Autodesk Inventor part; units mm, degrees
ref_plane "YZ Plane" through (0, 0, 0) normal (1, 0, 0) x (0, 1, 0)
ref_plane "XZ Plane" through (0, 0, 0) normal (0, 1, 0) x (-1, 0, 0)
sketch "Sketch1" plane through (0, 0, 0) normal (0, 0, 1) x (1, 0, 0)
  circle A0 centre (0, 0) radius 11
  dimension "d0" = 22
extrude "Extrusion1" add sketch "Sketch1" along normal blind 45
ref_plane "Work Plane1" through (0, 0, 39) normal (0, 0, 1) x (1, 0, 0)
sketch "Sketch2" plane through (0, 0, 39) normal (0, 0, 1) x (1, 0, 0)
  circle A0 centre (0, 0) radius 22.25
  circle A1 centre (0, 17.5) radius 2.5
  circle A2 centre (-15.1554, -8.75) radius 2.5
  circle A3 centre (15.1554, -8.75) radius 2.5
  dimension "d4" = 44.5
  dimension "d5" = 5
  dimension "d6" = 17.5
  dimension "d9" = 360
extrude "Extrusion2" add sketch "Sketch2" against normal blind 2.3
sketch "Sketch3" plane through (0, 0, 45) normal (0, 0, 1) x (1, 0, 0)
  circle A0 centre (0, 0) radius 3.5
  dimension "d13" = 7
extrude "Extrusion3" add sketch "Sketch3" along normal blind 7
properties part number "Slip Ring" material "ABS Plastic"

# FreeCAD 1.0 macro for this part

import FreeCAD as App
import Part
import Sketcher
Q = App.Units.Quantity

doc = App.newDocument("Part")
body = doc.addObject("PartDesign::Body", "Body")

sketch1 = doc.addObject("Sketcher::SketchObject", "Sketch")
body.addObject(sketch1)
sketch1.AttachmentSupport = (doc.XY_Plane, [""])
sketch1.MapMode = "FlatFace"
sketch1.addGeometry(Part.Circle(App.Vector(0, 0, 0), App.Vector(0, 0, 1), 11), False)
sketch1.addConstraint([
    Sketcher.Constraint("Coincident", 0, 3, -1, 1),
    Sketcher.Constraint("Diameter", 0, Q("22 mm")),
])
pad1 = doc.addObject("PartDesign::Pad", "Pad")
body.addObject(pad1)
pad1.Profile = sketch1
pad1.Length = 45

sketch2 = doc.addObject("Sketcher::SketchObject", "Sketch001")
body.addObject(sketch2)
sketch2.AttachmentSupport = (doc.XY_Plane, [""])
sketch2.MapMode = "FlatFace"
sketch2.AttachmentOffset = App.Placement(App.Vector(0, 0, 39), App.Rotation())
sketch2.addGeometry([
    Part.Circle(App.Vector(0, 0, 0), App.Vector(0, 0, 1), 22.2),
    Part.Circle(App.Vector(-15.2, -8.8, 0), App.Vector(0, 0, 1), 2.5),
    Part.Circle(App.Vector(15.2, -8.8, 0), App.Vector(0, 0, 1), 2.5),
    Part.Circle(App.Vector(0, 17.5, 0), App.Vector(0, 0, 1), 2.5),
], False)
sketch2.addConstraint([
    Sketcher.Constraint("Coincident", 0, 3, -1, 1),
    Sketcher.Constraint("Equal", 1, 2),
    Sketcher.Constraint("Equal", 2, 3),
    Sketcher.Constraint("Symmetric", 1, 3, 2, 3, -2),
    Sketcher.Constraint("PointOnObject", 3, 3, -2),
    Sketcher.Constraint("Diameter", 1, Q("5 mm")),
    Sketcher.Constraint("Diameter", 0, Q("44.5 mm")),
    Sketcher.Constraint("DistanceY", -1, 1, 3, 3, Q("17.5 mm")),
    Sketcher.Constraint("DistanceY", 1, 3, -1, 1, Q("8.75 mm")),
    Sketcher.Constraint("DistanceX", 1, 3, -1, 1, Q("15.1554 mm")),
])
pad2 = doc.addObject("PartDesign::Pad", "Pad001")
body.addObject(pad2)
pad2.Profile = sketch2
pad2.Length = 2.3
pad2.Reversed = True

sketch3 = doc.addObject("Sketcher::SketchObject", "Sketch002")
body.addObject(sketch3)
sketch3.AttachmentSupport = (doc.XY_Plane, [""])
sketch3.MapMode = "FlatFace"
sketch3.AttachmentOffset = App.Placement(App.Vector(0, 0, 45), App.Rotation())
sketch3.addGeometry(Part.Circle(App.Vector(0, 0, 0), App.Vector(0, 0, 1), 3.5), False)
sketch3.addConstraint([
    Sketcher.Constraint("Coincident", 0, 3, -1, 1),
    Sketcher.Constraint("Diameter", 0, Q("7 mm")),
])
pad3 = doc.addObject("PartDesign::Pad", "Pad002")
body.addObject(pad3)
pad3.Profile = sketch3
pad3.Length = 7

doc.recompute()
